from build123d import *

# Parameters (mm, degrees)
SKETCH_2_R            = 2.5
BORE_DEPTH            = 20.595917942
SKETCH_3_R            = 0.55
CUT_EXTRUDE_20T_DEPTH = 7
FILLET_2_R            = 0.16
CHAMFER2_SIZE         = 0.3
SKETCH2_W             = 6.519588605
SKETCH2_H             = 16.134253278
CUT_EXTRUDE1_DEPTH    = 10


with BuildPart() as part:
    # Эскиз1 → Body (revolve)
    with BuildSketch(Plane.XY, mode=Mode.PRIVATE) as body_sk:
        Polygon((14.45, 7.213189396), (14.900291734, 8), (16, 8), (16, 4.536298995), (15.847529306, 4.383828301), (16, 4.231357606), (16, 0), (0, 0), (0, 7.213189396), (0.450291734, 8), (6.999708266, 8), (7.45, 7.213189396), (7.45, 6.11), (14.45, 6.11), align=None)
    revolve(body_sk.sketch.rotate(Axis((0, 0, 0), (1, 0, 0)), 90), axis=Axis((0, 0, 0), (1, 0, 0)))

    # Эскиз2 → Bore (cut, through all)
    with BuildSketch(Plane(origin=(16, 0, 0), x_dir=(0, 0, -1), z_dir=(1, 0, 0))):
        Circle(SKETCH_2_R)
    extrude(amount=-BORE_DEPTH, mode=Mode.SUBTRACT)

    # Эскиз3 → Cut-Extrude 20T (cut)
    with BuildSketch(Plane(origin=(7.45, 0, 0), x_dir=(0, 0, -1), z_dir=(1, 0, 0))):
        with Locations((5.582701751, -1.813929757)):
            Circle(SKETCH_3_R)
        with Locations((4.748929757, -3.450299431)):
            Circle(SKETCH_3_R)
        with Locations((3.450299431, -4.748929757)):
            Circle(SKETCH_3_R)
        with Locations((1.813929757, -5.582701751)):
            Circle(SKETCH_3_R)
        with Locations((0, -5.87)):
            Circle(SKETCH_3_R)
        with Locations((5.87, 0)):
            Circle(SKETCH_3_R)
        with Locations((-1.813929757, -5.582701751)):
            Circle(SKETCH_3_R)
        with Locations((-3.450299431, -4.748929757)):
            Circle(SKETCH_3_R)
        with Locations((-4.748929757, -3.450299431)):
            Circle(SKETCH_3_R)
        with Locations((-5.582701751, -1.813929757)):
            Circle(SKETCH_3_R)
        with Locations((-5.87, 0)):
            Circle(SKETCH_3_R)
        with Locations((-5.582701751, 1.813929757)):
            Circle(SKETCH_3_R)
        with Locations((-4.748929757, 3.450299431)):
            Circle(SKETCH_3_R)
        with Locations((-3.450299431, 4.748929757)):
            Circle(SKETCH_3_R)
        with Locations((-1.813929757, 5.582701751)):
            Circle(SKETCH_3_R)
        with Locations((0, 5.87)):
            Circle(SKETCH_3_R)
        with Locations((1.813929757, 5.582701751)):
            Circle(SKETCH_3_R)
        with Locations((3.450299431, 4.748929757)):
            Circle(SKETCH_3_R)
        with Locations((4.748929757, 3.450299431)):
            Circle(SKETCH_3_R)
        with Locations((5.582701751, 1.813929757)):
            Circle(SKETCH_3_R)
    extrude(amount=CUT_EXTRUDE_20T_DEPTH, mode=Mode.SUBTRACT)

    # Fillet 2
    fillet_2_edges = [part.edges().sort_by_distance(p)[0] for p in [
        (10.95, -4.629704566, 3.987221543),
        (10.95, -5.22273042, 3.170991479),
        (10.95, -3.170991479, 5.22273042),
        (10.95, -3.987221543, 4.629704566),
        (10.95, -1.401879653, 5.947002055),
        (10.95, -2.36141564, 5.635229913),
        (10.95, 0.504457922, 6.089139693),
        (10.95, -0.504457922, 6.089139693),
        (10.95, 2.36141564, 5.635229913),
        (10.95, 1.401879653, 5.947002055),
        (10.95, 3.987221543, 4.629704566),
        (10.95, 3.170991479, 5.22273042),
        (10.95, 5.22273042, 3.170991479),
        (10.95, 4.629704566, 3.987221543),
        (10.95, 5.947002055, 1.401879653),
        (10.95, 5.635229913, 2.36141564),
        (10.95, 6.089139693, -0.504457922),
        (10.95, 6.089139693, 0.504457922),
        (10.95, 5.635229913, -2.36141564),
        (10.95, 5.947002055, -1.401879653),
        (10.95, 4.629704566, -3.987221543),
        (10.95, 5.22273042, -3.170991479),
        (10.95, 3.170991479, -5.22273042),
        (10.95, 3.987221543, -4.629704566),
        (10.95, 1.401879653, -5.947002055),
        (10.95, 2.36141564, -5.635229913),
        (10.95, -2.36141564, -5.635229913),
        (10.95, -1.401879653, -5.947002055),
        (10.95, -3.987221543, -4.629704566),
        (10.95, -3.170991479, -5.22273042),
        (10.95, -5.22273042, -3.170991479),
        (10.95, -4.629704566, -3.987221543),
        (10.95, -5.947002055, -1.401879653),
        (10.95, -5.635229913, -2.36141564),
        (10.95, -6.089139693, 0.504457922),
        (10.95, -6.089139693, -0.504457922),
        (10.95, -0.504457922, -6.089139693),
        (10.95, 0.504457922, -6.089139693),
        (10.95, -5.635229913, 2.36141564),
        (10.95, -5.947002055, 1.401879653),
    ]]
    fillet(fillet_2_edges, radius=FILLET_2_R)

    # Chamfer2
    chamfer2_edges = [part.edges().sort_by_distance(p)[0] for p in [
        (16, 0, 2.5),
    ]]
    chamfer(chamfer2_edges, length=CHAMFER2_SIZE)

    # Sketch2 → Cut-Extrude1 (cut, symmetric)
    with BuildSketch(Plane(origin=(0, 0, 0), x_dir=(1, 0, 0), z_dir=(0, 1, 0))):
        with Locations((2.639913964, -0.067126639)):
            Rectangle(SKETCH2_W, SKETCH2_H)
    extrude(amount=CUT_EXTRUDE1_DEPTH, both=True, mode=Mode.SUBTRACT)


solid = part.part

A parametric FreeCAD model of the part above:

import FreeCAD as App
import Part
import Sketcher
from FreeCAD import Vector


def edges_at(feature, points):
    """Names of the edges that pass closest to the given points."""
    edges = feature.Shape.Edges
    near = lambda p: min(range(len(edges)), key=lambda i: edges[i].distToShape(Part.Vertex(*p))[0])
    return sorted({f"Edge{near(p) + 1}" for p in points})


def add_polygon(sketch, points):
    """Adds a closed chain of lines whose ends are joined by coincident constraints."""
    first, n = sketch.GeometryCount, len(points)
    for a, b in zip(points, points[1:] + points[:1]):
        sketch.addGeometry(Part.LineSegment(App.Vector(*a, 0), App.Vector(*b, 0)), False)
    for i in range(n):
        sketch.addConstraint(Sketcher.Constraint("Coincident", first + i, 2, first + (i + 1) % n, 1))

doc = App.newDocument("Part")
params = doc.addObject("Spreadsheet::Sheet", "Params")
for row, (alias, value) in enumerate([
    ("sketch1_width", "7 mm"),
    ("sketch1_width2", "16 mm"),
    ("revolution_angle", "360 deg"),
    ("sketch2_diameter", "5 mm"),
    ("sketch3_diameter", "1.1 mm"),
    ("pocket2_length", "7 mm"),
    ("fillet_radius", "0.16 mm"),
    ("chamfer_size", "0.3 mm"),
    ("pocket3_length", "20 mm"),
], start=1):
    params.set(f"A{row}", alias)
    params.set(f"B{row}", "=" + value)
    params.setAlias(f"B{row}", alias)

body = doc.addObject("PartDesign::Body", "Body")

# Sketch on XY plane
sketch1 = body.newObject("Sketcher::SketchObject", "Sketch")
sketch1.AttachmentSupport = (doc.getObject("XY_Plane"), [""])
sketch1.MapMode = "FlatFace"
add_polygon(sketch1, [(14.9, 8), (14.45, 7.21), (14.45, 6.11), (7.45, 6.11), (7.45, 7.21), (7, 8), (0.45, 8), (0, 7.21), (0, 0), (16, 0), (16, 4.23), (15.85, 4.38), (16, 4.54), (16, 8)])  # lines 0-13
sketch1.addConstraint(Sketcher.Constraint("Vertical", 1))
sketch1.addConstraint(Sketcher.Constraint("Horizontal", 2))
sketch1.addConstraint(Sketcher.Constraint("Vertical", 3))
sketch1.addConstraint(Sketcher.Constraint("Horizontal", 5))
sketch1.addConstraint(Sketcher.Constraint("Vertical", 7))
sketch1.addConstraint(Sketcher.Constraint("Horizontal", 8))
sketch1.addConstraint(Sketcher.Constraint("Vertical", 9))
sketch1.addConstraint(Sketcher.Constraint("Vertical", 12))
sketch1.addConstraint(Sketcher.Constraint("Horizontal", 13))
sketch1.addConstraint(Sketcher.Constraint("Coincident", 7, 2, -1, 1))
sketch1.addConstraint(Sketcher.Constraint("Parallel", 0, 6))
sketch1.addConstraint(Sketcher.Constraint("Perpendicular", 10, 11))
sketch1.addConstraint(Sketcher.Constraint("Horizontal", 0, 2, 3, 2))
sketch1.addConstraint(Sketcher.Constraint("Horizontal", 3, 2, 6, 2))
sketch1.addConstraint(Sketcher.Constraint("Horizontal", 5, 2, 12, 2))
sketch1.addConstraint(Sketcher.Constraint("Vertical", 9, 2, 11, 2))
sketch1.addConstraint(Sketcher.Constraint("Equal", 0, 4))
sketch1.addConstraint(Sketcher.Constraint("Equal", 10, 11))
sketch1.addConstraint(Sketcher.Constraint("DistanceX", 2, 2, 2, 1, 7.0))
sketch1.addConstraint(Sketcher.Constraint("DistanceX", 8, 1, 8, 2, 16.0))
sketch1.addConstraint(Sketcher.Constraint("DistanceY", -1, 1, 4, 2, 8.0))
sketch1.addConstraint(Sketcher.Constraint("DistanceX", -1, 1, 0, 2, 14.45))
sketch1.addConstraint(Sketcher.Constraint("DistanceY", -1, 1, 1, 2, 6.11))
sketch1.addConstraint(Sketcher.Constraint("DistanceY", 12, 1, 12, 2, 3.463701))
sketch1.addConstraint(Sketcher.Constraint("DistanceX", 13, 2, 13, 1, 1.099708))
sketch1.addConstraint(Sketcher.Constraint("DistanceY", 1, 2, 1, 1, 1.103189))
sketch1.addConstraint(Sketcher.Constraint("DistanceY", 9, 1, 9, 2, 4.231358))
sketch1.setExpression("Constraints[32]", "Params.sketch1_width")
sketch1.setExpression("Constraints[33]", "Params.sketch1_width2")
revolution = body.newObject("PartDesign::Revolution", "Revolution")
revolution.Profile = sketch1
revolution.ReferenceAxis = (sketch1, ["H_Axis"])
revolution.setExpression("Angle", "Params.revolution_angle")

# Sketch on YZ plane
sketch2 = body.newObject("Sketcher::SketchObject", "Sketch001")
sketch2.AttachmentSupport = (doc.getObject("YZ_Plane"), [""])
sketch2.MapMode = "FlatFace"
sketch2.AttachmentOffset = App.Placement(Vector(0, 0, 16), App.Rotation())
sketch2.addGeometry(Part.Circle(Vector(0, 0, 0), Vector(0, 0, 1), 2.5), False)
sketch2.addConstraint(Sketcher.Constraint("Coincident", 0, 3, -1, 1))
sketch2.addConstraint(Sketcher.Constraint("Diameter", 0, 5.0))
sketch2.setExpression("Constraints[1]", "Params.sketch2_diameter")
pocket1 = body.newObject("PartDesign::Pocket", "Pocket")
pocket1.Profile = sketch2
pocket1.Type = "ThroughAll"

# Sketch on YZ plane
sketch3 = body.newObject("Sketcher::SketchObject", "Sketch002")
sketch3.AttachmentSupport = (doc.getObject("YZ_Plane"), [""])
sketch3.MapMode = "FlatFace"
sketch3.AttachmentOffset = App.Placement(Vector(0, 0, 7.45), App.Rotation())
sketch3.addGeometry(Part.Circle(Vector(-1.8, -5.6, 0), Vector(0, 0, 1), 0.6), False)
sketch3.addGeometry(Part.Circle(Vector(-3.5, -4.7, 0), Vector(0, 0, 1), 0.6), False)
sketch3.addGeometry(Part.Circle(Vector(-4.7, -3.5, 0), Vector(0, 0, 1), 0.6), False)
sketch3.addGeometry(Part.Circle(Vector(-5.6, -1.8, 0), Vector(0, 0, 1), 0.6), False)
sketch3.addGeometry(Part.Circle(Vector(-5.9, 0, 0), Vector(0, 0, 1), 0.6), False)
sketch3.addGeometry(Part.Circle(Vector(0, -5.9, 0), Vector(0, 0, 1), 0.6), False)
sketch3.addGeometry(Part.Circle(Vector(-5.6, 1.8, 0), Vector(0, 0, 1), 0.6), False)
sketch3.addGeometry(Part.Circle(Vector(-4.7, 3.5, 0), Vector(0, 0, 1), 0.6), False)
sketch3.addGeometry(Part.Circle(Vector(-3.5, 4.7, 0), Vector(0, 0, 1), 0.6), False)
sketch3.addGeometry(Part.Circle(Vector(-1.8, 5.6, 0), Vector(0, 0, 1), 0.6), False)
sketch3.addGeometry(Part.Circle(Vector(0, 5.9, 0), Vector(0, 0, 1), 0.6), False)
sketch3.addGeometry(Part.Circle(Vector(1.8, 5.6, 0), Vector(0, 0, 1), 0.6), False)
sketch3.addGeometry(Part.Circle(Vector(3.5, 4.7, 0), Vector(0, 0, 1), 0.6), False)
sketch3.addGeometry(Part.Circle(Vector(4.7, 3.5, 0), Vector(0, 0, 1), 0.6), False)
sketch3.addGeometry(Part.Circle(Vector(5.6, 1.8, 0), Vector(0, 0, 1), 0.6), False)
sketch3.addGeometry(Part.Circle(Vector(5.9, 0, 0), Vector(0, 0, 1), 0.6), False)
sketch3.addGeometry(Part.Circle(Vector(5.6, -1.8, 0), Vector(0, 0, 1), 0.6), False)
sketch3.addGeometry(Part.Circle(Vector(4.7, -3.5, 0), Vector(0, 0, 1), 0.6), False)
sketch3.addGeometry(Part.Circle(Vector(3.5, -4.7, 0), Vector(0, 0, 1), 0.6), False)
sketch3.addGeometry(Part.Circle(Vector(1.8, -5.6, 0), Vector(0, 0, 1), 0.6), False)
sketch3.addConstraint(Sketcher.Constraint("Equal", 0, 1))
sketch3.addConstraint(Sketcher.Constraint("Equal", 1, 2))
sketch3.addConstraint(Sketcher.Constraint("Equal", 2, 3))
sketch3.addConstraint(Sketcher.Constraint("Equal", 3, 4))
sketch3.addConstraint(Sketcher.Constraint("Equal", 4, 5))
sketch3.addConstraint(Sketcher.Constraint("Equal", 5, 6))
sketch3.addConstraint(Sketcher.Constraint("Equal", 6, 7))
sketch3.addConstraint(Sketcher.Constraint("Equal", 7, 8))
sketch3.addConstraint(Sketcher.Constraint("Equal", 8, 9))
sketch3.addConstraint(Sketcher.Constraint("Equal", 9, 10))
sketch3.addConstraint(Sketcher.Constraint("Equal", 10, 11))
sketch3.addConstraint(Sketcher.Constraint("Equal", 11, 12))
sketch3.addConstraint(Sketcher.Constraint("Equal", 12, 13))
sketch3.addConstraint(Sketcher.Constraint("Equal", 13, 14))
sketch3.addConstraint(Sketcher.Constraint("Equal", 14, 15))
sketch3.addConstraint(Sketcher.Constraint("Equal", 15, 16))
sketch3.addConstraint(Sketcher.Constraint("Equal", 16, 17))
sketch3.addConstraint(Sketcher.Constraint("Equal", 17, 18))
sketch3.addConstraint(Sketcher.Constraint("Equal", 18, 19))
sketch3.addConstraint(Sketcher.Constraint("Symmetric", 5, 3, 10, 3, -1, 1))
sketch3.addConstraint(Sketcher.Constraint("Symmetric", 0, 3, 11, 3, -1, 1))
sketch3.addConstraint(Sketcher.Constraint("Symmetric", 1, 3, 12, 3, -1, 1))
sketch3.addConstraint(Sketcher.Constraint("Symmetric", 2, 3, 13, 3, -1, 1))
sketch3.addConstraint(Sketcher.Constraint("Symmetric", 3, 3, 14, 3, -1, 1))
sketch3.addConstraint(Sketcher.Constraint("Symmetric", 4, 3, 15, 3, -1, 1))
sketch3.addConstraint(Sketcher.Constraint("Symmetric", 6, 3, 16, 3, -1, 1))
sketch3.addConstraint(Sketcher.Constraint("Symmetric", 7, 3, 17, 3, -1, 1))
sketch3.addConstraint(Sketcher.Constraint("Symmetric", 8, 3, 18, 3, -1, 1))
sketch3.addConstraint(Sketcher.Constraint("Symmetric", 9, 3, 19, 3, -1, 1))
sketch3.addConstraint(Sketcher.Constraint("Symmetric", 9, 3, 11, 3, -2))
sketch3.addConstraint(Sketcher.Constraint("Symmetric", 8, 3, 12, 3, -2))
sketch3.addConstraint(Sketcher.Constraint("Symmetric", 7, 3, 13, 3, -2))
sketch3.addConstraint(Sketcher.Constraint("Symmetric", 6, 3, 14, 3, -2))
sketch3.addConstraint(Sketcher.Constraint("PointOnObject", 4, 3, -1))
sketch3.addConstraint(Sketcher.Constraint("PointOnObject", 5, 3, -2))
sketch3.addConstraint(Sketcher.Constraint("Diameter", 0, 1.1))
sketch3.addConstraint(Sketcher.Constraint("DistanceX", 4, 3, -1, 1, 5.87))
sketch3.addConstraint(Sketcher.Constraint("DistanceY", 5, 3, -1, 1, 5.87))
sketch3.addConstraint(Sketcher.Constraint("DistanceX", 2, 3, 0, 3, 2.935))
sketch3.addConstraint(Sketcher.Constraint("DistanceY", 1, 3, 3, 3, 2.935))
sketch3.addConstraint(Sketcher.Constraint("DistanceY", 0, 3, -1, 1, 5.582702))
sketch3.addConstraint(Sketcher.Constraint("DistanceX", 1, 3, -1, 1, 3.450299))
sketch3.addConstraint(Sketcher.Constraint("DistanceY", 2, 3, -1, 1, 3.450299))
sketch3.addConstraint(Sketcher.Constraint("DistanceX", 3, 3, -1, 1, 5.582702))
sketch3.addConstraint(Sketcher.Constraint("DistanceX", 0, 3, -1, 1, 1.81393))
sketch3.addConstraint(Sketcher.Constraint("DistanceY", 1, 3, -1, 1, 4.74893))
sketch3.setExpression("Constraints[35]", "Params.sketch3_diameter")
pocket2 = body.newObject("PartDesign::Pocket", "Pocket001")
pocket2.Profile = sketch3
pocket2.setExpression("Length", "Params.pocket2_length")
pocket2.Reversed = True
doc.recompute()

fillet = body.newObject("PartDesign::Fillet", "Fillet")
fillet.Base = (pocket2, edges_at(pocket2, [
    (10.95, -4.63, 3.987),
    (10.95, -5.223, 3.171),
    (10.95, -3.171, 5.223),
    (10.95, -3.987, 4.63),
    (10.95, -1.402, 5.947),
    (10.95, -2.361, 5.635),
    (10.95, 0.504, 6.089),
    (10.95, -0.504, 6.089),
    (10.95, 2.361, 5.635),
    (10.95, 1.402, 5.947),
    (10.95, 3.987, 4.63),
    (10.95, 3.171, 5.223),
    (10.95, 5.223, 3.171),
    (10.95, 4.63, 3.987),
    (10.95, 5.947, 1.402),
    (10.95, 5.635, 2.361),
    (10.95, 6.089, -0.504),
    (10.95, 6.089, 0.504),
    (10.95, 5.635, -2.361),
    (10.95, 5.947, -1.402),
    (10.95, 4.63, -3.987),
    (10.95, 5.223, -3.171),
    (10.95, 3.171, -5.223),
    (10.95, 3.987, -4.63),
    (10.95, 1.402, -5.947),
    (10.95, 2.361, -5.635),
    (10.95, -2.361, -5.635),
    (10.95, -1.402, -5.947),
    (10.95, -3.987, -4.63),
    (10.95, -3.171, -5.223),
    (10.95, -5.223, -3.171),
    (10.95, -4.63, -3.987),
    (10.95, -5.947, -1.402),
    (10.95, -5.635, -2.361),
    (10.95, -6.089, 0.504),
    (10.95, -6.089, -0.504),
    (10.95, -0.504, -6.089),
    (10.95, 0.504, -6.089),
    (10.95, -5.635, 2.361),
    (10.95, -5.947, 1.402),
]))
fillet.setExpression("Radius", "Params.fillet_radius")
doc.recompute()

chamfer = body.newObject("PartDesign::Chamfer", "Chamfer")
chamfer.Base = (fillet, edges_at(fillet, [(16, 0, 2.5)]))
chamfer.setExpression("Size", "Params.chamfer_size")

# Sketch on XZ plane
sketch4 = body.newObject("Sketcher::SketchObject", "Sketch003")
sketch4.AttachmentSupport = (doc.getObject("XZ_Plane"), [""])
sketch4.MapMode = "FlatFace"
add_polygon(sketch4, [(-1, -8), (-1, 8), (6, 8), (6, -8)])  # lines 0-3
sketch4.addConstraint(Sketcher.Constraint("Vertical", 0))
sketch4.addConstraint(Sketcher.Constraint("Horizontal", 1))
sketch4.addConstraint(Sketcher.Constraint("Vertical", 2))
sketch4.addConstraint(Sketcher.Constraint("Horizontal", 3))
sketch4.addConstraint(Sketcher.Constraint("DistanceY", 2, 2, -1, 1, 8.0))
sketch4.addConstraint(Sketcher.Constraint("DistanceX", 1, 1, 1, 2, 6.519589))
sketch4.addConstraint(Sketcher.Constraint("DistanceY", 0, 1, 0, 2, 16.134253))
sketch4.addConstraint(Sketcher.Constraint("DistanceX", 0, 2, -1, 1, 0.61988))
pocket3 = body.newObject("PartDesign::Pocket", "Pocket002")
pocket3.Profile = sketch4
pocket3.setExpression("Length", "Params.pocket3_length")
pocket3.Midplane = True

doc.recompute()
